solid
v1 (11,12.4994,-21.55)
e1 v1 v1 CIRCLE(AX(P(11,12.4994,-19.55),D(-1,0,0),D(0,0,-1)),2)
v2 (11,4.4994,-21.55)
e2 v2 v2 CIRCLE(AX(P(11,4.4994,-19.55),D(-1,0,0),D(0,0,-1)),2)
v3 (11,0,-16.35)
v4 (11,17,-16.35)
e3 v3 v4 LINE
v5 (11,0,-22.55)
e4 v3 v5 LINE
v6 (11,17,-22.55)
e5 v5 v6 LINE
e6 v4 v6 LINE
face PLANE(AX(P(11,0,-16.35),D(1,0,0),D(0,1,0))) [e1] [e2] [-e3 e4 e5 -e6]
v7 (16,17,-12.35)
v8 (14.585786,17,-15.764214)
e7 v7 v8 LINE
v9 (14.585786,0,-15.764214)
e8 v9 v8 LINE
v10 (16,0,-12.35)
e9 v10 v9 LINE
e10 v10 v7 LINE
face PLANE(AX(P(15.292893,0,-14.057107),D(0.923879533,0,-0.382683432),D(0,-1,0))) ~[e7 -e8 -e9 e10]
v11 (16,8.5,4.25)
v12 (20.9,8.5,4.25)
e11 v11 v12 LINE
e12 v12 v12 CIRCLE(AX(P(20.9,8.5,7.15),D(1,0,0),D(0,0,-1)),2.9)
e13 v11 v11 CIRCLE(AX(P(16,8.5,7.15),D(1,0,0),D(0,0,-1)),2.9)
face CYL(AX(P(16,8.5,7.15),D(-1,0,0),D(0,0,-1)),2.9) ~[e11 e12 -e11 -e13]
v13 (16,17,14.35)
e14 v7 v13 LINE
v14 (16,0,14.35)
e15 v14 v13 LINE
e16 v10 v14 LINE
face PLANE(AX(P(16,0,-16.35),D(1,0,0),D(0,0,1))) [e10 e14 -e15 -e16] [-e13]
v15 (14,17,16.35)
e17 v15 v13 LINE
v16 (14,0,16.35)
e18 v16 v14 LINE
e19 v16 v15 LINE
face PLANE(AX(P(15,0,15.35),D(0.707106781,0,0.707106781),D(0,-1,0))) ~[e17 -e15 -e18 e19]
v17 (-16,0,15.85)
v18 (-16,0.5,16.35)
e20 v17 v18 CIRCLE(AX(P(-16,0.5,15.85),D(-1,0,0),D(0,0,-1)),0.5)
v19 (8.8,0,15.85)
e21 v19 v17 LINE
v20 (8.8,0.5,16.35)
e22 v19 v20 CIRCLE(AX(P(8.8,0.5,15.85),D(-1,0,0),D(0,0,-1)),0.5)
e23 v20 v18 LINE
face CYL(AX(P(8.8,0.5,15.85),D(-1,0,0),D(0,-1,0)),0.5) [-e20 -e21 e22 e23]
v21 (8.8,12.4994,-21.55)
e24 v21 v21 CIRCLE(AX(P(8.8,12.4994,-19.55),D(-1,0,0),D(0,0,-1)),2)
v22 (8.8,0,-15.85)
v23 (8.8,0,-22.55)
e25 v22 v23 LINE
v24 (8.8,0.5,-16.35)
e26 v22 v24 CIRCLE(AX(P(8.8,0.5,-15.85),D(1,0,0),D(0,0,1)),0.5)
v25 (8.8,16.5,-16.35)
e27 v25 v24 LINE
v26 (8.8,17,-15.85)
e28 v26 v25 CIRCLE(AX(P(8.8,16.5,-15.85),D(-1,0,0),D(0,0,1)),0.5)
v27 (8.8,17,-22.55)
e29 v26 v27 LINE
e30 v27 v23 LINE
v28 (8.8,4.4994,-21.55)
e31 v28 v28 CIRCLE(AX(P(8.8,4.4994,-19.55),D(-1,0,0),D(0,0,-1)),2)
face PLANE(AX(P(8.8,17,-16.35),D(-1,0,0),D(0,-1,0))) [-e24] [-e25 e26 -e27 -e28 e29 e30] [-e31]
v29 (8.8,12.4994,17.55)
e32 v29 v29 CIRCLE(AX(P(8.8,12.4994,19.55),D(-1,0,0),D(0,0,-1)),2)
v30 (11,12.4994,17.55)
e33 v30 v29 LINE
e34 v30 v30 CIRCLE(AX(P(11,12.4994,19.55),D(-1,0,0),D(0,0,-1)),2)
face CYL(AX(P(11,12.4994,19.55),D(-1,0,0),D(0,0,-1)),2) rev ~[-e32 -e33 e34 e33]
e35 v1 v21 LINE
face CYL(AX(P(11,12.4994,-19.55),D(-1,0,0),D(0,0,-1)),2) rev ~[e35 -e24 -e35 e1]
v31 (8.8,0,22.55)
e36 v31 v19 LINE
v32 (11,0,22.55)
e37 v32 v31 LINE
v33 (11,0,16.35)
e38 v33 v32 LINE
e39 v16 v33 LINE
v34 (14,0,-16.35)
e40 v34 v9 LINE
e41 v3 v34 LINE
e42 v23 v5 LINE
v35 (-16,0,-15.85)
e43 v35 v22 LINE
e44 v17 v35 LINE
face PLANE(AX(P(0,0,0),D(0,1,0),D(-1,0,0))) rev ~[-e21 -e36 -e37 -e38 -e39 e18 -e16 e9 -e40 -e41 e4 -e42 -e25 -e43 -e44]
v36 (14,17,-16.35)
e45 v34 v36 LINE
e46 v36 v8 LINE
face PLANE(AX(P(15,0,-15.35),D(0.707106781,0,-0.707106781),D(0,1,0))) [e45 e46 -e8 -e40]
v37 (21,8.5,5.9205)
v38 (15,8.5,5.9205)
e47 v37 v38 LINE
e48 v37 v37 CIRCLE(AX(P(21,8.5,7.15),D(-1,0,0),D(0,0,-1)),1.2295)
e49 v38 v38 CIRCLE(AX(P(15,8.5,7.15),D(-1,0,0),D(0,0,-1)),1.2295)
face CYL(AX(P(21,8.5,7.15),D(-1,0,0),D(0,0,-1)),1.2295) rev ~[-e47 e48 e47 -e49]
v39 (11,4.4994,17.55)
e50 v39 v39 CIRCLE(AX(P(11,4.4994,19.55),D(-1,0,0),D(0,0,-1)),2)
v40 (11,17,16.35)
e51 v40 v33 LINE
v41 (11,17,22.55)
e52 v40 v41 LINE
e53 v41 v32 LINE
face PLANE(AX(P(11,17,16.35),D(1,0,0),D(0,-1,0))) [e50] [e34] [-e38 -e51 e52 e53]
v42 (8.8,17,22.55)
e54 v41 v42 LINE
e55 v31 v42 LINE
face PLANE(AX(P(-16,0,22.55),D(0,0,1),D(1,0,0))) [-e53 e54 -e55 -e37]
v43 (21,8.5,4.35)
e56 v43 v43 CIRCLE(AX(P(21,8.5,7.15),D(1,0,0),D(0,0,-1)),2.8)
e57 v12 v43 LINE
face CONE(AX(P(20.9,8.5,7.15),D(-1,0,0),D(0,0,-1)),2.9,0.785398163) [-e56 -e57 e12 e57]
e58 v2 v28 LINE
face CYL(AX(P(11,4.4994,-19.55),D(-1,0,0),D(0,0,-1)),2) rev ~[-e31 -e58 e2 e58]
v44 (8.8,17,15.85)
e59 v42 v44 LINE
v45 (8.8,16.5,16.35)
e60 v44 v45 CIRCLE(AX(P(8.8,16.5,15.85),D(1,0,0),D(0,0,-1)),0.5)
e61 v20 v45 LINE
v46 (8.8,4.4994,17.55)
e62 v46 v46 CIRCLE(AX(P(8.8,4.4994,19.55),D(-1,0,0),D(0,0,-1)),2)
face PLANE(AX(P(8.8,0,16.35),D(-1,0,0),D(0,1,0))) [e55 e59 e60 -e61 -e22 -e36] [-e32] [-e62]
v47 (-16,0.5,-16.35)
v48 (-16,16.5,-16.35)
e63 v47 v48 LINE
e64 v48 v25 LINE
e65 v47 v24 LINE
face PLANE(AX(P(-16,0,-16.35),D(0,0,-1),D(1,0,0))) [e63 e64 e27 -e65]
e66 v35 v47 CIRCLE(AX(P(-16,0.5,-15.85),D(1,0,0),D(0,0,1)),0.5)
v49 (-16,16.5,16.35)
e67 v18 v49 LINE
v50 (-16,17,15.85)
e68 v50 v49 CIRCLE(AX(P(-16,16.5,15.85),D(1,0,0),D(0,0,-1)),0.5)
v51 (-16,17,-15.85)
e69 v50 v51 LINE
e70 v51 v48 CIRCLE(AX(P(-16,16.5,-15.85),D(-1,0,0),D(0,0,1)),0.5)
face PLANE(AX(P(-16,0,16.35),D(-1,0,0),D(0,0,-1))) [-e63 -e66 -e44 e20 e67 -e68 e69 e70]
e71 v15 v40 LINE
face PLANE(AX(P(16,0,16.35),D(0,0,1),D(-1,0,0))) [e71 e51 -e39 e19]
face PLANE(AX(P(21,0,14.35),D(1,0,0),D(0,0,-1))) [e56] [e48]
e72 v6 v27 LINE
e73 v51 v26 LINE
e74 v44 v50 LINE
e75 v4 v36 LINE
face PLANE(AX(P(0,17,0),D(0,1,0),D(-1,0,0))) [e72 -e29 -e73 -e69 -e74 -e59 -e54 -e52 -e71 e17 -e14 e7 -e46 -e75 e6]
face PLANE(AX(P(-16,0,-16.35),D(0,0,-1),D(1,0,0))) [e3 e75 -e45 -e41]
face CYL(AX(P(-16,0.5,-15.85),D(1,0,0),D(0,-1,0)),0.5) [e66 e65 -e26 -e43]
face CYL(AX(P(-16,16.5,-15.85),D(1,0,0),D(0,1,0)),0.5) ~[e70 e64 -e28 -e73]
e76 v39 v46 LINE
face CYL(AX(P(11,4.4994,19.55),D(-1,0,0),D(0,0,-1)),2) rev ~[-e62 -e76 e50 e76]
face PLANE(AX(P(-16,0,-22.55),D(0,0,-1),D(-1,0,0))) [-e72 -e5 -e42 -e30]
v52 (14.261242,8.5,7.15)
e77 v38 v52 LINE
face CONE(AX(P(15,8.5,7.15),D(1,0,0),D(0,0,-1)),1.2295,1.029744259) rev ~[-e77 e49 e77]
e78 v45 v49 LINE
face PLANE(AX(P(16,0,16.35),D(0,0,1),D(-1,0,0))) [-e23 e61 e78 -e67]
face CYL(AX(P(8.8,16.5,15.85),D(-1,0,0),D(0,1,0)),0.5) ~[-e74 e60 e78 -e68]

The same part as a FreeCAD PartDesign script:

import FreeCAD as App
import Part
import Sketcher
Q = App.Units.Quantity


def edges_at(feature, points):
    """Names of the edges that pass closest to the given points."""
    edges = feature.Shape.Edges
    near = lambda p: min(range(len(edges)), key=lambda i: edges[i].distToShape(Part.Vertex(*p))[0])
    return sorted({f"Edge{near(p) + 1}" for p in points})

doc = App.newDocument("Part")
params = doc.addObject("Spreadsheet::Sheet", "Params")
for row, (alias, value) in enumerate([
    ("sketch1_width", "32 mm"),
    ("sketch1_height", "32.7 mm"),
    ("pad1_length", "17 mm"),
    ("chamfer_size", "2 mm"),
    ("chamfer2_size", "2 mm"),
    ("sketch2_diameter", "5.8 mm"),
    ("pad2_length", "5 mm"),
    ("sketch3_width", "2.2 mm"),
    ("sketch3_height", "17 mm"),
    ("pad3_length", "6.2 mm"),
    ("sketch4_diameter", "4 mm"),
    ("hole_diameter", "4 mm"),
    ("hole_depth", "8 mm"),
    ("sketch5_height", "17 mm"),
    ("sketch5_width", "2.2 mm"),
    ("pad4_length", "6.2 mm"),
    ("sketch6_diameter", "4 mm"),
    ("hole2_diameter", "4 mm"),
    ("hole2_depth", "8 mm"),
    ("chamfer3_size", "0.1 mm"),
    ("fillet_radius", "0.5 mm"),
    ("hole3_diameter", "2.459 mm"),
    ("hole3_depth", "6 mm"),
], start=1):
    params.set(f"A{row}", alias)
    params.set(f"B{row}", "=" + value)
    params.setAlias(f"B{row}", alias)

body = doc.addObject("PartDesign::Body", "Body")

# Sketch on XZ plane
sketch1 = body.newObject("Sketcher::SketchObject", "Sketch")
sketch1.AttachmentSupport = (doc.getObject("XZ_Plane"), [""])
sketch1.MapMode = "FlatFace"
sketch1.addGeometry(Part.LineSegment(App.Vector(-16, 16, 0), App.Vector(16, 16, 0)), False)
sketch1.addGeometry(Part.LineSegment(App.Vector(16, 16, 0), App.Vector(16, -16, 0)), False)
sketch1.addGeometry(Part.LineSegment(App.Vector(16, -16, 0), App.Vector(-16, -16, 0)), False)
sketch1.addGeometry(Part.LineSegment(App.Vector(-16, -16, 0), App.Vector(-16, 16, 0)), False)
sketch1.addConstraint(Sketcher.Constraint("Coincident", 0, 2, 1, 1))
sketch1.addConstraint(Sketcher.Constraint("Coincident", 1, 2, 2, 1))
sketch1.addConstraint(Sketcher.Constraint("Coincident", 2, 2, 3, 1))
sketch1.addConstraint(Sketcher.Constraint("Coincident", 3, 2, 0, 1))
sketch1.addConstraint(Sketcher.Constraint("Horizontal", 0))
sketch1.addConstraint(Sketcher.Constraint("Vertical", 1))
sketch1.addConstraint(Sketcher.Constraint("Horizontal", 2))
sketch1.addConstraint(Sketcher.Constraint("Vertical", 3))
sketch1.addConstraint(Sketcher.Constraint("Symmetric", 0, 2, 2, 2, -1, 1))
sketch1.addConstraint(Sketcher.Constraint("DistanceX", 0, 1, 0, 2, Q("32 mm")))
sketch1.addConstraint(Sketcher.Constraint("DistanceY", 1, 2, 1, 1, Q("32.7 mm")))
sketch1.setExpression("Constraints[9]", "Params.sketch1_width")
sketch1.setExpression("Constraints[10]", "Params.sketch1_height")
pad1 = body.newObject("PartDesign::Pad", "Pad")
pad1.Profile = sketch1
pad1.setExpression("Length", "Params.pad1_length")
pad1.Reversed = True
doc.recompute()

chamfer = body.newObject("PartDesign::Chamfer", "Chamfer")
chamfer.Base = (pad1, edges_at(pad1, [(16, 8.5, 16.35), (16, 8.5, -16.35)]))
chamfer.setExpression("Size", "Params.chamfer_size")
doc.recompute()

chamfer2 = body.newObject("PartDesign::Chamfer", "Chamfer001")
chamfer2.Base = (chamfer, edges_at(chamfer, [(16, 8.5, -14.35)]))
chamfer2.setExpression("Size", "Params.chamfer2_size")

# Sketch on YZ plane
sketch2 = body.newObject("Sketcher::SketchObject", "Sketch001")
sketch2.AttachmentSupport = (doc.getObject("YZ_Plane"), [""])
sketch2.MapMode = "FlatFace"
sketch2.AttachmentOffset = App.Placement(App.Vector(0, 0, 16), App.Rotation())
sketch2.addGeometry(Part.Circle(App.Vector(8.5, 7.2, 0), App.Vector(0, 0, 1), 2.9), False)
sketch2.addConstraint(Sketcher.Constraint("Diameter", 0, Q("5.8 mm")))
sketch2.addConstraint(Sketcher.Constraint("DistanceX", -1, 1, 0, 3, Q("8.5 mm")))
sketch2.addConstraint(Sketcher.Constraint("DistanceY", -1, 1, 0, 3, Q("7.15 mm")))
sketch2.setExpression("Constraints[0]", "Params.sketch2_diameter")
pad2 = body.newObject("PartDesign::Pad", "Pad001")
pad2.Profile = sketch2
pad2.setExpression("Length", "Params.pad2_length")

# Sketch on XY plane
sketch3 = body.newObject("Sketcher::SketchObject", "Sketch002")
sketch3.AttachmentSupport = (doc.getObject("XY_Plane"), [""])
sketch3.MapMode = "FlatFace"
sketch3.AttachmentOffset = App.Placement(App.Vector(0, 0, 16.35), App.Rotation())
sketch3.addGeometry(Part.LineSegment(App.Vector(11, 0, 0), App.Vector(11, 17, 0)), False)
sketch3.addGeometry(Part.LineSegment(App.Vector(11, 17, 0), App.Vector(8.8, 17, 0)), False)
sketch3.addGeometry(Part.LineSegment(App.Vector(8.8, 17, 0), App.Vector(8.8, 0, 0)), False)
sketch3.addGeometry(Part.LineSegment(App.Vector(8.8, 0, 0), App.Vector(11, 0, 0)), False)
sketch3.addConstraint(Sketcher.Constraint("Coincident", 0, 2, 1, 1))
sketch3.addConstraint(Sketcher.Constraint("Coincident", 1, 2, 2, 1))
sketch3.addConstraint(Sketcher.Constraint("Coincident", 2, 2, 3, 1))
sketch3.addConstraint(Sketcher.Constraint("Coincident", 3, 2, 0, 1))
sketch3.addConstraint(Sketcher.Constraint("Vertical", 0))
sketch3.addConstraint(Sketcher.Constraint("Horizontal", 1))
sketch3.addConstraint(Sketcher.Constraint("Vertical", 2))
sketch3.addConstraint(Sketcher.Constraint("Horizontal", 3))
sketch3.addConstraint(Sketcher.Constraint("PointOnObject", 2, 2, -1))
sketch3.addConstraint(Sketcher.Constraint("DistanceX", 1, 2, 1, 1, Q("2.2 mm")))
sketch3.addConstraint(Sketcher.Constraint("DistanceY", 0, 1, 0, 2, Q("17 mm")))
sketch3.addConstraint(Sketcher.Constraint("DistanceX", -1, 1, 0, 2, Q("11 mm")))
sketch3.setExpression("Constraints[9]", "Params.sketch3_width")
sketch3.setExpression("Constraints[10]", "Params.sketch3_height")
pad3 = body.newObject("PartDesign::Pad", "Pad002")
pad3.Profile = sketch3
pad3.setExpression("Length", "Params.pad3_length")

# Sketch on YZ plane
sketch4 = body.newObject("Sketcher::SketchObject", "Sketch003")
sketch4.AttachmentSupport = (doc.getObject("YZ_Plane"), [""])
sketch4.MapMode = "FlatFace"
sketch4.AttachmentOffset = App.Placement(App.Vector(0, 0, 11), App.Rotation())
sketch4.addGeometry(Part.Circle(App.Vector(12.5, 19.6, 0), App.Vector(0, 0, 1), 2), False)
sketch4.addGeometry(Part.Circle(App.Vector(4.5, 19.6, 0), App.Vector(0, 0, 1), 2), False)
sketch4.addConstraint(Sketcher.Constraint("Equal", 0, 1))
sketch4.addConstraint(Sketcher.Constraint("Horizontal", 0, 3, 1, 3))
sketch4.addConstraint(Sketcher.Constraint("Diameter", 0, Q("4 mm")))
sketch4.addConstraint(Sketcher.Constraint("DistanceX", 1, 3, 0, 3, Q("8 mm")))
sketch4.addConstraint(Sketcher.Constraint("DistanceY", -1, 1, 0, 3, Q("19.55 mm")))
sketch4.addConstraint(Sketcher.Constraint("DistanceX", -1, 1, 0, 3, Q("12.4994 mm")))
sketch4.setExpression("Constraints[2]", "Params.sketch4_diameter")
doc.recompute()
hole = body.newObject("PartDesign::Hole", "Hole")
hole.Profile = sketch4
hole.ThreadType = "None"
hole.setExpression("Diameter", "Params.hole_diameter")
hole.DepthType = "Dimension"
hole.setExpression("Depth", "Params.hole_depth")
hole.DrillPoint = "Angled"
hole.DrillPointAngle = 118

# Sketch on XY plane
sketch5 = body.newObject("Sketcher::SketchObject", "Sketch004")
sketch5.AttachmentSupport = (doc.getObject("XY_Plane"), [""])
sketch5.MapMode = "FlatFace"
sketch5.AttachmentOffset = App.Placement(App.Vector(0, 0, -16.35), App.Rotation())
sketch5.addGeometry(Part.LineSegment(App.Vector(8.8, 17, 0), App.Vector(11, 17, 0)), False)
sketch5.addGeometry(Part.LineSegment(App.Vector(11, 17, 0), App.Vector(11, 0, 0)), False)
sketch5.addGeometry(Part.LineSegment(App.Vector(11, 0, 0), App.Vector(8.8, 0, 0)), False)
sketch5.addGeometry(Part.LineSegment(App.Vector(8.8, 0, 0), App.Vector(8.8, 17, 0)), False)
sketch5.addConstraint(Sketcher.Constraint("Coincident", 0, 2, 1, 1))
sketch5.addConstraint(Sketcher.Constraint("Coincident", 1, 2, 2, 1))
sketch5.addConstraint(Sketcher.Constraint("Coincident", 2, 2, 3, 1))
sketch5.addConstraint(Sketcher.Constraint("Coincident", 3, 2, 0, 1))
sketch5.addConstraint(Sketcher.Constraint("Horizontal", 0))
sketch5.addConstraint(Sketcher.Constraint("Vertical", 1))
sketch5.addConstraint(Sketcher.Constraint("Horizontal", 2))
sketch5.addConstraint(Sketcher.Constraint("Vertical", 3))
sketch5.addConstraint(Sketcher.Constraint("PointOnObject", 1, 2, -1))
sketch5.addConstraint(Sketcher.Constraint("DistanceY", 1, 2, 1, 1, Q("17 mm")))
sketch5.addConstraint(Sketcher.Constraint("DistanceX", 0, 1, 0, 2, Q("2.2 mm")))
sketch5.addConstraint(Sketcher.Constraint("DistanceX", -1, 1, 0, 2, Q("11 mm")))
sketch5.setExpression("Constraints[9]", "Params.sketch5_height")
sketch5.setExpression("Constraints[10]", "Params.sketch5_width")
pad4 = body.newObject("PartDesign::Pad", "Pad003")
pad4.Profile = sketch5
pad4.setExpression("Length", "Params.pad4_length")
pad4.Reversed = True

# Sketch on YZ plane
sketch6 = body.newObject("Sketcher::SketchObject", "Sketch005")
sketch6.AttachmentSupport = (doc.getObject("YZ_Plane"), [""])
sketch6.MapMode = "FlatFace"
sketch6.AttachmentOffset = App.Placement(App.Vector(0, 0, 11), App.Rotation())
sketch6.addGeometry(Part.Circle(App.Vector(12.5, -19.6, 0), App.Vector(0, 0, 1), 2), False)
sketch6.addGeometry(Part.Circle(App.Vector(4.5, -19.6, 0), App.Vector(0, 0, 1), 2), False)
sketch6.addConstraint(Sketcher.Constraint("Equal", 0, 1))
sketch6.addConstraint(Sketcher.Constraint("Horizontal", 0, 3, 1, 3))
sketch6.addConstraint(Sketcher.Constraint("Diameter", 0, Q("4 mm")))
sketch6.addConstraint(Sketcher.Constraint("DistanceX", 1, 3, 0, 3, Q("8 mm")))
sketch6.addConstraint(Sketcher.Constraint("DistanceY", 0, 3, -1, 1, Q("19.55 mm")))
sketch6.addConstraint(Sketcher.Constraint("DistanceX", -1, 1, 0, 3, Q("12.4994 mm")))
sketch6.setExpression("Constraints[2]", "Params.sketch6_diameter")
doc.recompute()
hole2 = body.newObject("PartDesign::Hole", "Hole001")
hole2.Profile = sketch6
hole2.ThreadType = "None"
hole2.setExpression("Diameter", "Params.hole2_diameter")
hole2.DepthType = "Dimension"
hole2.setExpression("Depth", "Params.hole2_depth")
hole2.DrillPoint = "Angled"
hole2.DrillPointAngle = 118
doc.recompute()

chamfer3 = body.newObject("PartDesign::Chamfer", "Chamfer002")
chamfer3.Base = (hole2, edges_at(hole2, [(21, 8.5, 10.05)]))
chamfer3.setExpression("Size", "Params.chamfer3_size")
doc.recompute()

fillet = body.newObject("PartDesign::Fillet", "Fillet")
fillet.Base = (chamfer3, edges_at(chamfer3, [
    (-3.6, 17, 16.35),
    (-3.6, 17, -16.35),
    (-3.6, 0, 16.35),
    (-3.6, 0, -16.35),
]))
fillet.setExpression("Radius", "Params.fillet_radius")

# Sketch on YZ plane
sketch7 = body.newObject("Sketcher::SketchObject", "Sketch006")
sketch7.AttachmentSupport = (doc.getObject("YZ_Plane"), [""])
sketch7.MapMode = "FlatFace"
sketch7.AttachmentOffset = App.Placement(App.Vector(0, 0, 21), App.Rotation())
sketch7.addGeometry(Part.Circle(App.Vector(8.5, 7.2, 0), App.Vector(0, 0, 1), 1.2), False)
sketch7.addConstraint(Sketcher.Constraint("Diameter", 0, Q("2.459 mm")))
sketch7.addConstraint(Sketcher.Constraint("DistanceX", -1, 1, 0, 3, Q("8.5 mm")))
sketch7.addConstraint(Sketcher.Constraint("DistanceY", -1, 1, 0, 3, Q("7.15 mm")))
doc.recompute()
hole3 = body.newObject("PartDesign::Hole", "Hole002")
hole3.Profile = sketch7
hole3.ThreadType = "None"
hole3.setExpression("Diameter", "Params.hole3_diameter")
hole3.DepthType = "Dimension"
hole3.setExpression("Depth", "Params.hole3_depth")
hole3.DrillPoint = "Angled"
hole3.DrillPointAngle = 118

doc.recompute()
